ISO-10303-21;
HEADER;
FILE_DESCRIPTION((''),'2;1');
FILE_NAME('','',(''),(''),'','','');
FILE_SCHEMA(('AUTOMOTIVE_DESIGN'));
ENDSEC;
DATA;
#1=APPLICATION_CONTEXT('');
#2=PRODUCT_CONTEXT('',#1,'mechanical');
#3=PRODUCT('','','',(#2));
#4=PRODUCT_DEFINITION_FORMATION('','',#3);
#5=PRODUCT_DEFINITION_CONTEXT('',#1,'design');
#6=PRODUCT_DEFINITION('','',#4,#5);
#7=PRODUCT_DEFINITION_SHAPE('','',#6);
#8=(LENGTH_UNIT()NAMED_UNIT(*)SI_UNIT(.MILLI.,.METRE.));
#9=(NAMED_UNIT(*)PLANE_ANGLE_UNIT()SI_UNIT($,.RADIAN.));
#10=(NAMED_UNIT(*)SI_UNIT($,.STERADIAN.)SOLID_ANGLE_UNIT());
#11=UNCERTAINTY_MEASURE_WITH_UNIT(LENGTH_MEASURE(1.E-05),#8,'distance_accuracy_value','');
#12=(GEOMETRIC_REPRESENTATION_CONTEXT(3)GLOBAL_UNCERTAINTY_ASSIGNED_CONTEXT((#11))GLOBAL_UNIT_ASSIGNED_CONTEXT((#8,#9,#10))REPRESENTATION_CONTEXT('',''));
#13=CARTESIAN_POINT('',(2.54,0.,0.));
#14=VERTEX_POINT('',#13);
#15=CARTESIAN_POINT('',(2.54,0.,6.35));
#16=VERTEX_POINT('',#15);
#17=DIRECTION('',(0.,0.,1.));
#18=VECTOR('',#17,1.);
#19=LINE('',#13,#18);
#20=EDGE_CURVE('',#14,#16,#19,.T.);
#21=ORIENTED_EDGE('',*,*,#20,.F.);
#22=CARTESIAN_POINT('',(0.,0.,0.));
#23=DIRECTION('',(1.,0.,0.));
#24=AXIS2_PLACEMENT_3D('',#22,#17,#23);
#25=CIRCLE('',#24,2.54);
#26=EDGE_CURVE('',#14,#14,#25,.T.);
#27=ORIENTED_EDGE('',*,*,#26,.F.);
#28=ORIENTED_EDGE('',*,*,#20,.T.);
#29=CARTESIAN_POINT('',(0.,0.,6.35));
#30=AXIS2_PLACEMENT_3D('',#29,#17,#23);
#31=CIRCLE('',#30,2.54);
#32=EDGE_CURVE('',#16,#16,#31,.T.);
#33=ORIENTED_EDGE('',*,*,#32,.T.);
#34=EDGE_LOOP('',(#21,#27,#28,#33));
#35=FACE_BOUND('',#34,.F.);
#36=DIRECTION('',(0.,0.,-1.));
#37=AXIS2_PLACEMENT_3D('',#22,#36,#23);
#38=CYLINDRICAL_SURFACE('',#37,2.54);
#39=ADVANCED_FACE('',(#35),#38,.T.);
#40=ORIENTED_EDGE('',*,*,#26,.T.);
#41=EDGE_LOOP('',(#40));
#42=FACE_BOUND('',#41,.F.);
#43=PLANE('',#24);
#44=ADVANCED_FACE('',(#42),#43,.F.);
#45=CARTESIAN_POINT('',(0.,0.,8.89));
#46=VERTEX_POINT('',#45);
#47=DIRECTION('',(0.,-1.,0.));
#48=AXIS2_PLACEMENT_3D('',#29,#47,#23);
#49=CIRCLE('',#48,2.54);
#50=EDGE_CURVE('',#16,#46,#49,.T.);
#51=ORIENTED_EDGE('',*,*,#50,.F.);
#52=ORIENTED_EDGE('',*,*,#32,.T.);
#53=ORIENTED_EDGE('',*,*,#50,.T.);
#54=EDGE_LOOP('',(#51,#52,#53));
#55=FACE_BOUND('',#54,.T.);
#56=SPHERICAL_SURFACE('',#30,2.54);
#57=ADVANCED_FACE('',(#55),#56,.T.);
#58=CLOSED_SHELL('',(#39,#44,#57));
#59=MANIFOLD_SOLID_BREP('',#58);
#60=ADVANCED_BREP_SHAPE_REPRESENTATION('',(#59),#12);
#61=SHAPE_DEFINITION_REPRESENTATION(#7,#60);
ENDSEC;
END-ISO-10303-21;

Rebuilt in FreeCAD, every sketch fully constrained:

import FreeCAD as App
import Part
import Sketcher
Q = App.Units.Quantity


def edges_at(feature, points):
    """Names of the edges that pass closest to the given points."""
    edges = feature.Shape.Edges
    near = lambda p: min(range(len(edges)), key=lambda i: edges[i].distToShape(Part.Vertex(*p))[0])
    return sorted({f"Edge{near(p) + 1}" for p in points})

doc = App.newDocument("Part")
body = doc.addObject("PartDesign::Body", "Body")

sketch1 = body.newObject("Sketcher::SketchObject", "Sketch")
sketch1.AttachmentSupport = (doc.getObject("XY_Plane"), [""])
sketch1.MapMode = "FlatFace"
sketch1.addGeometry(Part.Circle(App.Vector(0, 0, 0), App.Vector(0, 0, 1), 2.5), False)
sketch1.addConstraint(Sketcher.Constraint("Coincident", 0, 3, -1, 1))
sketch1.addConstraint(Sketcher.Constraint("Diameter", 0, Q("0.2 in")))
pad1 = body.newObject("PartDesign::Pad", "Pad")
pad1.Profile = sketch1
pad1.Length = Q("0.35 in")
doc.recompute()

fillet = body.newObject("PartDesign::Fillet", "Fillet")
fillet.Base = (pad1, edges_at(pad1, [(-2.54, 0, 8.89)]))
fillet.Radius = Q("0.1 in")

doc.recompute()
